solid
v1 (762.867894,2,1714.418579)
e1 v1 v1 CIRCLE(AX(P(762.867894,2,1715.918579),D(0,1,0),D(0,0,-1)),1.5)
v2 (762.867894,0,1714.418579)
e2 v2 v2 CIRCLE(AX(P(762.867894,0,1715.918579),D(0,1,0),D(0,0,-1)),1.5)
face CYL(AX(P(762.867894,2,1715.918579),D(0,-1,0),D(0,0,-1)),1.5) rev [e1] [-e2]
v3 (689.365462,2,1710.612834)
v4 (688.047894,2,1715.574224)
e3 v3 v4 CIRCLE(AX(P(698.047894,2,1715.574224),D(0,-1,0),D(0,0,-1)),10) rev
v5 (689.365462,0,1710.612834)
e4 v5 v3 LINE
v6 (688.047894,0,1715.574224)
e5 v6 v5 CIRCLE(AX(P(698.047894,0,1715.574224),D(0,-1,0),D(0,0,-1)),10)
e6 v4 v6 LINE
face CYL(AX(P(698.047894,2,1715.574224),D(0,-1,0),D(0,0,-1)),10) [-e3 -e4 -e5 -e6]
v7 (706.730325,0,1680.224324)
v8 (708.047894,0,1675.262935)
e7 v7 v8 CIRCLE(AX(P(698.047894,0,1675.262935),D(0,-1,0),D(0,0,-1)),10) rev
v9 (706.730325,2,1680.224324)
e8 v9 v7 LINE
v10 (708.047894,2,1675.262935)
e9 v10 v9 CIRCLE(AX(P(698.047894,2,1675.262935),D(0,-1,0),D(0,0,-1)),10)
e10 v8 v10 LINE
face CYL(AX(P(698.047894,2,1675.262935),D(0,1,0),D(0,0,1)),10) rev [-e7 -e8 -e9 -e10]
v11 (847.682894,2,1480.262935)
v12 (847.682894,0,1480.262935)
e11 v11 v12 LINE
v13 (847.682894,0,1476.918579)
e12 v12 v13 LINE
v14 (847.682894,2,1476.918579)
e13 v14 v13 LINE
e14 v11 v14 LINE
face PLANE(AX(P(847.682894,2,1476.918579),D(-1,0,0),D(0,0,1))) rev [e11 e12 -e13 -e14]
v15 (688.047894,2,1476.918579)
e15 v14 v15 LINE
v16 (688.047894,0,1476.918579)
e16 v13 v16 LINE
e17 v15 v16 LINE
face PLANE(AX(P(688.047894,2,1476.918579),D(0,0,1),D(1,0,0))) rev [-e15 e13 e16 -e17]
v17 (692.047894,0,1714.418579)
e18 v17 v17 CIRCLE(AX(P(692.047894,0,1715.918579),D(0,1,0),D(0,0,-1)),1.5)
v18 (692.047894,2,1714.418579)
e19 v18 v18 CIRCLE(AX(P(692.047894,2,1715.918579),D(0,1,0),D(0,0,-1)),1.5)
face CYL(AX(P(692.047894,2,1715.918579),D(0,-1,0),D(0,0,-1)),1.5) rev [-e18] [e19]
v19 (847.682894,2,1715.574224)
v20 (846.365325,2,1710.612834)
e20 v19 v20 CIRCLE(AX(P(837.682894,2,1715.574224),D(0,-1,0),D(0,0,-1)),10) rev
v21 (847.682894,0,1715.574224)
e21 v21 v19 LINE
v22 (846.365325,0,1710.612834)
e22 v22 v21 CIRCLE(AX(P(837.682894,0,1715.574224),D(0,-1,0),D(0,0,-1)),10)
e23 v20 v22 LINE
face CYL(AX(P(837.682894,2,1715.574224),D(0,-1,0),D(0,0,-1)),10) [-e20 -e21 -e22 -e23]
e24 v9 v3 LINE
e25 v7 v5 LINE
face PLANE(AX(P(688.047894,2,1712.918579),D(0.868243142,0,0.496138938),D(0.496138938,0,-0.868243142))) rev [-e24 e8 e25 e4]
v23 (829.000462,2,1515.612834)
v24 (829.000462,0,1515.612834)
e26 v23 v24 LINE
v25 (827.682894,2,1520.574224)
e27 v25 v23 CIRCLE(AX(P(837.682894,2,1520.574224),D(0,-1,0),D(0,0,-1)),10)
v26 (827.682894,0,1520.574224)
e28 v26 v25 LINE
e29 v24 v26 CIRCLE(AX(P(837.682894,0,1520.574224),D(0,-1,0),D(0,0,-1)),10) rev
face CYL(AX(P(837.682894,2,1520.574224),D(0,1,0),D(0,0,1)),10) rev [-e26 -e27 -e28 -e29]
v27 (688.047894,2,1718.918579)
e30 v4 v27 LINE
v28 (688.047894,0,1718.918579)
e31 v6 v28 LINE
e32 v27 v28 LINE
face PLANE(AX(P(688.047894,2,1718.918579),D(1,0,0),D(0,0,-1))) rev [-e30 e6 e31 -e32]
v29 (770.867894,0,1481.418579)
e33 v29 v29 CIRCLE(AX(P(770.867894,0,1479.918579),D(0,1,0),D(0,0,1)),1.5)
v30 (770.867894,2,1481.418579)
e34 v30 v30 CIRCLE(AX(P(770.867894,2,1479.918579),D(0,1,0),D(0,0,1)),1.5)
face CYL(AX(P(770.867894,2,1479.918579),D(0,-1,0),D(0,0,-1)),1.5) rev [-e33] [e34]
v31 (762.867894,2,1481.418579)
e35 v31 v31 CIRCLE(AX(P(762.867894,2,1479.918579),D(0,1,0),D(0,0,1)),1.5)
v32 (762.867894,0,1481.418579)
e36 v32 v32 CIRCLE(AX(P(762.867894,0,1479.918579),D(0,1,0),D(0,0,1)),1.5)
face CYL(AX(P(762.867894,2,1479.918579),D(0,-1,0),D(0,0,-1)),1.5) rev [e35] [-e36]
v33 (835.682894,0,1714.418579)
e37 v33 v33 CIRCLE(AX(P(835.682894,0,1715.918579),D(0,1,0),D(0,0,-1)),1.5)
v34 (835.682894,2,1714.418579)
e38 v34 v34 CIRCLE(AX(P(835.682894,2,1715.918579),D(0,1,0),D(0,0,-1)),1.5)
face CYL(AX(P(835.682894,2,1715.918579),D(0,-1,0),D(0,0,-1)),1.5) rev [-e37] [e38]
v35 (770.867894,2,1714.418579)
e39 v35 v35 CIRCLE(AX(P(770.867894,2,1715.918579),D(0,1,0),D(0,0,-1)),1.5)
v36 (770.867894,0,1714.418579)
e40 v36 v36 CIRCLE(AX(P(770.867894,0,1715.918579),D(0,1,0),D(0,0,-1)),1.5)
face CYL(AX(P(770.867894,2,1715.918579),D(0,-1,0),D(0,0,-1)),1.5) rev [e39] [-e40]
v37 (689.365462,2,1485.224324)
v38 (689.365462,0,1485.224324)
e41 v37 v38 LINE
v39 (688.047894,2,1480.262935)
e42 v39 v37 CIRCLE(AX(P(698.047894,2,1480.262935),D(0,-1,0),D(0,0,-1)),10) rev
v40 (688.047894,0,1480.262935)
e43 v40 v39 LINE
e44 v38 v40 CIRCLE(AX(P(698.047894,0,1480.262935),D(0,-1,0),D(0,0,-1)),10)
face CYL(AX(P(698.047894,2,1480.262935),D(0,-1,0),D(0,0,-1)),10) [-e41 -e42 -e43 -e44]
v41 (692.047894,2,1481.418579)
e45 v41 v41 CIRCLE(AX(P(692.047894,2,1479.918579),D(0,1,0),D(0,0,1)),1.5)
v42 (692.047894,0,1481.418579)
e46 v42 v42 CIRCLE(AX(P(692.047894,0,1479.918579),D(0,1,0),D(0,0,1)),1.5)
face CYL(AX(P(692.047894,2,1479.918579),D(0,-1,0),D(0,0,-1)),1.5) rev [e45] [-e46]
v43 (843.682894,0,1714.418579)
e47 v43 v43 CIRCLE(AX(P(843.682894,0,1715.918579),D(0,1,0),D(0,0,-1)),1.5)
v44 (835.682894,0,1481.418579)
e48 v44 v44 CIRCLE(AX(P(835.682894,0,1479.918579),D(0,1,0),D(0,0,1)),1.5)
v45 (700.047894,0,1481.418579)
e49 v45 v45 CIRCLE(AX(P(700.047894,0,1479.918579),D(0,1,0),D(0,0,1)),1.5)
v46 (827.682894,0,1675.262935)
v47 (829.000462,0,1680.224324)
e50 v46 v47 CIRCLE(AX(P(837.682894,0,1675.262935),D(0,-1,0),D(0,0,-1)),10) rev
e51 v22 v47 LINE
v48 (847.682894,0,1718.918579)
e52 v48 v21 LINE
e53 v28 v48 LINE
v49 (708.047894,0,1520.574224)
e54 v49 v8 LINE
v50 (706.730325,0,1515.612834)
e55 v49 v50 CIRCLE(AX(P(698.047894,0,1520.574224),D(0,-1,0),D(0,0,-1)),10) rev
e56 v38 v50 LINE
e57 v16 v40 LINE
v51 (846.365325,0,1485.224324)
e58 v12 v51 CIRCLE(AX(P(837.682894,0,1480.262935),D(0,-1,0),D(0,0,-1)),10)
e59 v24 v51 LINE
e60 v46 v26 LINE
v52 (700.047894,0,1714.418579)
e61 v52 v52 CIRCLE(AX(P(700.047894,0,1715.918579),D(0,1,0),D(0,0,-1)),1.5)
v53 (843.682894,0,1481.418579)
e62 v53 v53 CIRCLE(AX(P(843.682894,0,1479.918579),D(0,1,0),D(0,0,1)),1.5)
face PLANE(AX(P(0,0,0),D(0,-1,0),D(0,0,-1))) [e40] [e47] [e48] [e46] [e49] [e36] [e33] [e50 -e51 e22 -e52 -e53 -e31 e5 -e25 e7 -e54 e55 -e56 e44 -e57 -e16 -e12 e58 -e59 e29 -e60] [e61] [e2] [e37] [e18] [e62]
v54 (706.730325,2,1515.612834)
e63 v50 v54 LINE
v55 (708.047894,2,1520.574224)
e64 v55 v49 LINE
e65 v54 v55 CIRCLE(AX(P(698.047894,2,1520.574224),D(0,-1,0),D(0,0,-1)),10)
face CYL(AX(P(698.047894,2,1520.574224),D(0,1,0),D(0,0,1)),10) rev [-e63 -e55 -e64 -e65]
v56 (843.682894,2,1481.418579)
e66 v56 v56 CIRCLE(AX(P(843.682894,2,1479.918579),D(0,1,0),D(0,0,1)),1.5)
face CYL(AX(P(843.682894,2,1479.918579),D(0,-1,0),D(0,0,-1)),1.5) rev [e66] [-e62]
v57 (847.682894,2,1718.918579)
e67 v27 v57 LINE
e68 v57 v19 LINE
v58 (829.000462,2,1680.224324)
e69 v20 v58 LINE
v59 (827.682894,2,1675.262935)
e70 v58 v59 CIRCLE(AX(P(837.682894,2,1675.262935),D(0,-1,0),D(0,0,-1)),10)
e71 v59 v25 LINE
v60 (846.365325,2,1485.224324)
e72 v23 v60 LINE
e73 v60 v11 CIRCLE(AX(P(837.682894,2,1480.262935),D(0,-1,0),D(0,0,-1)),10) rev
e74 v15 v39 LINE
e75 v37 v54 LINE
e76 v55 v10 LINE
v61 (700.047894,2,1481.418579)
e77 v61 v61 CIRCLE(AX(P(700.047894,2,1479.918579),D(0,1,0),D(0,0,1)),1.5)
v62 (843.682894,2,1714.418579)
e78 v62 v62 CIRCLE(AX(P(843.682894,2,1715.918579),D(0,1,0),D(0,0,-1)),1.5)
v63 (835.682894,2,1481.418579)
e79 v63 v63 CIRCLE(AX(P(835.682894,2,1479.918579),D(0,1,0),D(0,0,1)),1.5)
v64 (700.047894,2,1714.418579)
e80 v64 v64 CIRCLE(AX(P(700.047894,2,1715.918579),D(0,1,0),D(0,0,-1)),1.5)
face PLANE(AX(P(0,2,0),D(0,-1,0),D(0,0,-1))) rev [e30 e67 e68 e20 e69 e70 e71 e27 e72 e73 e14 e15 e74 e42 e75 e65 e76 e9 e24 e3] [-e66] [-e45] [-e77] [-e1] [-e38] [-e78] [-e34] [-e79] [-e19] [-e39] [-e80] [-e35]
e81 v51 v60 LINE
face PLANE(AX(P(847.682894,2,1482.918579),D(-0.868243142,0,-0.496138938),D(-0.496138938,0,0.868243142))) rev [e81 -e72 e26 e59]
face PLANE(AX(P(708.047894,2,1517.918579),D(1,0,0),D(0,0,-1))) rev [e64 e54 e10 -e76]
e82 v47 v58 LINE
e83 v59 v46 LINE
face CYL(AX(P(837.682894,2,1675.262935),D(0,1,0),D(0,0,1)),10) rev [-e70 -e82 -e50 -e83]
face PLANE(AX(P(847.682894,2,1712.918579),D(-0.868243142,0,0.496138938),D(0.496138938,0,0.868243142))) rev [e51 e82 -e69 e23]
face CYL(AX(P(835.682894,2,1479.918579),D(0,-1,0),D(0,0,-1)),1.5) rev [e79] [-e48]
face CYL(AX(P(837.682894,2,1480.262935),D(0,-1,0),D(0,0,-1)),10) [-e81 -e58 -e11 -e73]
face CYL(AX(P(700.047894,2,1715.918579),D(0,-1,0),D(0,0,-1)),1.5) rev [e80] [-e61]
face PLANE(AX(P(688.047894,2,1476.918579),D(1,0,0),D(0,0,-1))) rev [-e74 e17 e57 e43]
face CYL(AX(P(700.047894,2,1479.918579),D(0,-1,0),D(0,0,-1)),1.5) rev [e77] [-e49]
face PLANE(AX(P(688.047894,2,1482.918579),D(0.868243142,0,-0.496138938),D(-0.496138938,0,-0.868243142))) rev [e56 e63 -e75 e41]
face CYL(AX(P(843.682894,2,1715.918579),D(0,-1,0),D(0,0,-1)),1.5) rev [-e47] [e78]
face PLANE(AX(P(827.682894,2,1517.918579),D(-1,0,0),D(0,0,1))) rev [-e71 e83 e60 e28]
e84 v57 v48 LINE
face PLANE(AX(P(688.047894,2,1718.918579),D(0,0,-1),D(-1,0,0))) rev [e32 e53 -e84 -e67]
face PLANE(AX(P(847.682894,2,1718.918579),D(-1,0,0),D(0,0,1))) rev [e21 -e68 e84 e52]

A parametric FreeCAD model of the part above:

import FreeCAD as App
import Part
import Sketcher
from FreeCAD import Vector
Q = App.Units.Quantity


def edges_at(feature, points):
    """Names of the edges that pass closest to the given points."""
    edges = feature.Shape.Edges
    near = lambda p: min(range(len(edges)), key=lambda i: edges[i].distToShape(Part.Vertex(*p))[0])
    return sorted({f"Edge{near(p) + 1}" for p in points})

doc = App.newDocument("Part")
body = doc.addObject("PartDesign::Body", "Body")

# Sketch on XZ plane
sketch1 = body.newObject("Sketcher::SketchObject", "Sketch")
sketch1.AttachmentSupport = (doc.getObject("XZ_Plane"), [""])
sketch1.MapMode = "FlatFace"
sketch1.addGeometry(Part.LineSegment(Vector(688, 1476.9, 0), Vector(688, 1482.9, 0)), False)
sketch1.addGeometry(Part.LineSegment(Vector(688, 1482.9, 0), Vector(708, 1517.9, 0)), False)
sketch1.addGeometry(Part.LineSegment(Vector(708, 1517.9, 0), Vector(708, 1677.9, 0)), False)
sketch1.addGeometry(Part.LineSegment(Vector(708, 1677.9, 0), Vector(688, 1712.9, 0)), False)
sketch1.addGeometry(Part.LineSegment(Vector(688, 1712.9, 0), Vector(688, 1718.9, 0)), False)
sketch1.addGeometry(Part.LineSegment(Vector(688, 1718.9, 0), Vector(847.7, 1718.9, 0)), False)
sketch1.addGeometry(Part.LineSegment(Vector(847.7, 1718.9, 0), Vector(847.7, 1712.9, 0)), False)
sketch1.addGeometry(Part.LineSegment(Vector(847.7, 1712.9, 0), Vector(827.7, 1677.9, 0)), False)
sketch1.addGeometry(Part.LineSegment(Vector(827.7, 1677.9, 0), Vector(827.7, 1517.9, 0)), False)
sketch1.addGeometry(Part.LineSegment(Vector(827.7, 1517.9, 0), Vector(847.7, 1482.9, 0)), False)
sketch1.addGeometry(Part.LineSegment(Vector(847.7, 1482.9, 0), Vector(847.7, 1476.9, 0)), False)
sketch1.addGeometry(Part.LineSegment(Vector(847.7, 1476.9, 0), Vector(688, 1476.9, 0)), False)
sketch1.addGeometry(Part.Circle(Vector(692, 1715.9, 0), Vector(0, 0, 1), 1.5), False)
sketch1.addGeometry(Part.Circle(Vector(700, 1715.9, 0), Vector(0, 0, 1), 1.5), False)
sketch1.addGeometry(Part.Circle(Vector(762.9, 1715.9, 0), Vector(0, 0, 1), 1.5), False)
sketch1.addGeometry(Part.Circle(Vector(770.9, 1715.9, 0), Vector(0, 0, 1), 1.5), False)
sketch1.addGeometry(Part.Circle(Vector(835.7, 1715.9, 0), Vector(0, 0, 1), 1.5), False)
sketch1.addGeometry(Part.Circle(Vector(843.7, 1715.9, 0), Vector(0, 0, 1), 1.5), False)
sketch1.addGeometry(Part.Circle(Vector(692, 1479.9, 0), Vector(0, 0, 1), 1.5), False)
sketch1.addGeometry(Part.Circle(Vector(700, 1479.9, 0), Vector(0, 0, 1), 1.5), False)
sketch1.addGeometry(Part.Circle(Vector(762.9, 1479.9, 0), Vector(0, 0, 1), 1.5), False)
sketch1.addGeometry(Part.Circle(Vector(770.9, 1479.9, 0), Vector(0, 0, 1), 1.5), False)
sketch1.addGeometry(Part.Circle(Vector(835.7, 1479.9, 0), Vector(0, 0, 1), 1.5), False)
sketch1.addGeometry(Part.Circle(Vector(843.7, 1479.9, 0), Vector(0, 0, 1), 1.5), False)
sketch1.addConstraint(Sketcher.Constraint("Coincident", 0, 2, 1, 1))
sketch1.addConstraint(Sketcher.Constraint("Coincident", 1, 2, 2, 1))
sketch1.addConstraint(Sketcher.Constraint("Coincident", 2, 2, 3, 1))
sketch1.addConstraint(Sketcher.Constraint("Coincident", 3, 2, 4, 1))
sketch1.addConstraint(Sketcher.Constraint("Coincident", 4, 2, 5, 1))
sketch1.addConstraint(Sketcher.Constraint("Coincident", 5, 2, 6, 1))
sketch1.addConstraint(Sketcher.Constraint("Coincident", 6, 2, 7, 1))
sketch1.addConstraint(Sketcher.Constraint("Coincident", 7, 2, 8, 1))
sketch1.addConstraint(Sketcher.Constraint("Coincident", 8, 2, 9, 1))
sketch1.addConstraint(Sketcher.Constraint("Coincident", 9, 2, 10, 1))
sketch1.addConstraint(Sketcher.Constraint("Coincident", 10, 2, 11, 1))
sketch1.addConstraint(Sketcher.Constraint("Coincident", 11, 2, 0, 1))
sketch1.addConstraint(Sketcher.Constraint("Vertical", 0))
sketch1.addConstraint(Sketcher.Constraint("Vertical", 2))
sketch1.addConstraint(Sketcher.Constraint("Vertical", 4))
sketch1.addConstraint(Sketcher.Constraint("Horizontal", 5))
sketch1.addConstraint(Sketcher.Constraint("Vertical", 6))
sketch1.addConstraint(Sketcher.Constraint("Vertical", 8))
sketch1.addConstraint(Sketcher.Constraint("Vertical", 10))
sketch1.addConstraint(Sketcher.Constraint("Horizontal", 11))
sketch1.addConstraint(Sketcher.Constraint("Equal", 12, 13))
sketch1.addConstraint(Sketcher.Constraint("Equal", 13, 14))
sketch1.addConstraint(Sketcher.Constraint("Equal", 14, 15))
sketch1.addConstraint(Sketcher.Constraint("Equal", 15, 16))
sketch1.addConstraint(Sketcher.Constraint("Equal", 16, 17))
sketch1.addConstraint(Sketcher.Constraint("Equal", 17, 18))
sketch1.addConstraint(Sketcher.Constraint("Equal", 18, 19))
sketch1.addConstraint(Sketcher.Constraint("Equal", 19, 20))
sketch1.addConstraint(Sketcher.Constraint("Equal", 20, 21))
sketch1.addConstraint(Sketcher.Constraint("Equal", 21, 22))
sketch1.addConstraint(Sketcher.Constraint("Equal", 22, 23))
sketch1.addConstraint(Sketcher.Constraint("Parallel", 1, 7))
sketch1.addConstraint(Sketcher.Constraint("Parallel", 3, 9))
sketch1.addConstraint(Sketcher.Constraint("Horizontal", 12, 3, 13, 3))
sketch1.addConstraint(Sketcher.Constraint("Horizontal", 13, 3, 14, 3))
sketch1.addConstraint(Sketcher.Constraint("Horizontal", 14, 3, 15, 3))
sketch1.addConstraint(Sketcher.Constraint("Horizontal", 15, 3, 16, 3))
sketch1.addConstraint(Sketcher.Constraint("Horizontal", 16, 3, 17, 3))
sketch1.addConstraint(Sketcher.Constraint("Horizontal", 18, 3, 19, 3))
sketch1.addConstraint(Sketcher.Constraint("Horizontal", 19, 3, 20, 3))
sketch1.addConstraint(Sketcher.Constraint("Horizontal", 20, 3, 21, 3))
sketch1.addConstraint(Sketcher.Constraint("Horizontal", 21, 3, 22, 3))
sketch1.addConstraint(Sketcher.Constraint("Horizontal", 22, 3, 23, 3))
sketch1.addConstraint(Sketcher.Constraint("Horizontal", 3, 2, 6, 2))
sketch1.addConstraint(Sketcher.Constraint("Horizontal", 2, 2, 7, 2))
sketch1.addConstraint(Sketcher.Constraint("Horizontal", 1, 2, 8, 2))
sketch1.addConstraint(Sketcher.Constraint("Horizontal", 0, 2, 9, 2))
sketch1.addConstraint(Sketcher.Constraint("Vertical", 12, 3, 18, 3))
sketch1.addConstraint(Sketcher.Constraint("Vertical", 13, 3, 19, 3))
sketch1.addConstraint(Sketcher.Constraint("Vertical", 14, 3, 20, 3))
sketch1.addConstraint(Sketcher.Constraint("Vertical", 15, 3, 21, 3))
sketch1.addConstraint(Sketcher.Constraint("Vertical", 16, 3, 22, 3))
sketch1.addConstraint(Sketcher.Constraint("Vertical", 17, 3, 23, 3))
sketch1.addConstraint(Sketcher.Constraint("Vertical", 0, 2, 3, 2))
sketch1.addConstraint(Sketcher.Constraint("Vertical", 6, 2, 9, 2))
sketch1.addConstraint(Sketcher.Constraint("Equal", 0, 4))
sketch1.addConstraint(Sketcher.Constraint("Diameter", 12, Q("3 mm")))
sketch1.addConstraint(Sketcher.Constraint("DistanceY", 0, 1, 0, 2, Q("6 mm")))
sketch1.addConstraint(Sketcher.Constraint("DistanceY", 2, 1, 2, 2, Q("160 mm")))
sketch1.addConstraint(Sketcher.Constraint("DistanceX", 12, 3, 13, 3, Q("8 mm")))
sketch1.addConstraint(Sketcher.Constraint("DistanceX", 14, 3, 15, 3, Q("8 mm")))
sketch1.addConstraint(Sketcher.Constraint("DistanceX", 16, 3, 17, 3, Q("8 mm")))
sketch1.addConstraint(Sketcher.Constraint("DistanceY", 18, 3, 12, 3, Q("236 mm")))
sketch1.addConstraint(Sketcher.Constraint("DistanceX", 0, 2, 18, 3, Q("4 mm")))
sketch1.addConstraint(Sketcher.Constraint("DistanceY", 18, 3, 0, 2, Q("3 mm")))
sketch1.addConstraint(Sketcher.Constraint("DistanceX", 19, 3, 1, 2, Q("8 mm")))
sketch1.addConstraint(Sketcher.Constraint("DistanceY", 19, 3, 1, 2, Q("38 mm")))
sketch1.addConstraint(Sketcher.Constraint("DistanceX", 17, 3, 5, 2, Q("4 mm")))
sketch1.addConstraint(Sketcher.Constraint("DistanceX", 5, 1, 5, 2, Q("159.635 mm")))
sketch1.addConstraint(Sketcher.Constraint("DistanceX", 13, 3, 14, 3, Q("62.82 mm")))
sketch1.addConstraint(Sketcher.Constraint("DistanceY", -1, 1, 12, 3, Q("1715.918579 mm")))
sketch1.addConstraint(Sketcher.Constraint("DistanceX", -1, 1, 12, 3, Q("692.047894 mm")))
pad1 = body.newObject("PartDesign::Pad", "Pad")
pad1.Profile = sketch1
pad1.Length = 2
pad1.Reversed = True
doc.recompute()

fillet = body.newObject("PartDesign::Fillet", "Fillet")
fillet.Base = (pad1, edges_at(pad1, [
    (847.683, 1, 1712.919),
    (688.048, 1, 1712.919),
    (708.048, 1, 1677.919),
    (708.048, 1, 1517.919),
    (688.048, 1, 1482.919),
    (847.683, 1, 1482.919),
    (827.683, 1, 1517.919),
    (827.683, 1, 1677.919),
]))
fillet.Radius = 10

doc.recompute()
